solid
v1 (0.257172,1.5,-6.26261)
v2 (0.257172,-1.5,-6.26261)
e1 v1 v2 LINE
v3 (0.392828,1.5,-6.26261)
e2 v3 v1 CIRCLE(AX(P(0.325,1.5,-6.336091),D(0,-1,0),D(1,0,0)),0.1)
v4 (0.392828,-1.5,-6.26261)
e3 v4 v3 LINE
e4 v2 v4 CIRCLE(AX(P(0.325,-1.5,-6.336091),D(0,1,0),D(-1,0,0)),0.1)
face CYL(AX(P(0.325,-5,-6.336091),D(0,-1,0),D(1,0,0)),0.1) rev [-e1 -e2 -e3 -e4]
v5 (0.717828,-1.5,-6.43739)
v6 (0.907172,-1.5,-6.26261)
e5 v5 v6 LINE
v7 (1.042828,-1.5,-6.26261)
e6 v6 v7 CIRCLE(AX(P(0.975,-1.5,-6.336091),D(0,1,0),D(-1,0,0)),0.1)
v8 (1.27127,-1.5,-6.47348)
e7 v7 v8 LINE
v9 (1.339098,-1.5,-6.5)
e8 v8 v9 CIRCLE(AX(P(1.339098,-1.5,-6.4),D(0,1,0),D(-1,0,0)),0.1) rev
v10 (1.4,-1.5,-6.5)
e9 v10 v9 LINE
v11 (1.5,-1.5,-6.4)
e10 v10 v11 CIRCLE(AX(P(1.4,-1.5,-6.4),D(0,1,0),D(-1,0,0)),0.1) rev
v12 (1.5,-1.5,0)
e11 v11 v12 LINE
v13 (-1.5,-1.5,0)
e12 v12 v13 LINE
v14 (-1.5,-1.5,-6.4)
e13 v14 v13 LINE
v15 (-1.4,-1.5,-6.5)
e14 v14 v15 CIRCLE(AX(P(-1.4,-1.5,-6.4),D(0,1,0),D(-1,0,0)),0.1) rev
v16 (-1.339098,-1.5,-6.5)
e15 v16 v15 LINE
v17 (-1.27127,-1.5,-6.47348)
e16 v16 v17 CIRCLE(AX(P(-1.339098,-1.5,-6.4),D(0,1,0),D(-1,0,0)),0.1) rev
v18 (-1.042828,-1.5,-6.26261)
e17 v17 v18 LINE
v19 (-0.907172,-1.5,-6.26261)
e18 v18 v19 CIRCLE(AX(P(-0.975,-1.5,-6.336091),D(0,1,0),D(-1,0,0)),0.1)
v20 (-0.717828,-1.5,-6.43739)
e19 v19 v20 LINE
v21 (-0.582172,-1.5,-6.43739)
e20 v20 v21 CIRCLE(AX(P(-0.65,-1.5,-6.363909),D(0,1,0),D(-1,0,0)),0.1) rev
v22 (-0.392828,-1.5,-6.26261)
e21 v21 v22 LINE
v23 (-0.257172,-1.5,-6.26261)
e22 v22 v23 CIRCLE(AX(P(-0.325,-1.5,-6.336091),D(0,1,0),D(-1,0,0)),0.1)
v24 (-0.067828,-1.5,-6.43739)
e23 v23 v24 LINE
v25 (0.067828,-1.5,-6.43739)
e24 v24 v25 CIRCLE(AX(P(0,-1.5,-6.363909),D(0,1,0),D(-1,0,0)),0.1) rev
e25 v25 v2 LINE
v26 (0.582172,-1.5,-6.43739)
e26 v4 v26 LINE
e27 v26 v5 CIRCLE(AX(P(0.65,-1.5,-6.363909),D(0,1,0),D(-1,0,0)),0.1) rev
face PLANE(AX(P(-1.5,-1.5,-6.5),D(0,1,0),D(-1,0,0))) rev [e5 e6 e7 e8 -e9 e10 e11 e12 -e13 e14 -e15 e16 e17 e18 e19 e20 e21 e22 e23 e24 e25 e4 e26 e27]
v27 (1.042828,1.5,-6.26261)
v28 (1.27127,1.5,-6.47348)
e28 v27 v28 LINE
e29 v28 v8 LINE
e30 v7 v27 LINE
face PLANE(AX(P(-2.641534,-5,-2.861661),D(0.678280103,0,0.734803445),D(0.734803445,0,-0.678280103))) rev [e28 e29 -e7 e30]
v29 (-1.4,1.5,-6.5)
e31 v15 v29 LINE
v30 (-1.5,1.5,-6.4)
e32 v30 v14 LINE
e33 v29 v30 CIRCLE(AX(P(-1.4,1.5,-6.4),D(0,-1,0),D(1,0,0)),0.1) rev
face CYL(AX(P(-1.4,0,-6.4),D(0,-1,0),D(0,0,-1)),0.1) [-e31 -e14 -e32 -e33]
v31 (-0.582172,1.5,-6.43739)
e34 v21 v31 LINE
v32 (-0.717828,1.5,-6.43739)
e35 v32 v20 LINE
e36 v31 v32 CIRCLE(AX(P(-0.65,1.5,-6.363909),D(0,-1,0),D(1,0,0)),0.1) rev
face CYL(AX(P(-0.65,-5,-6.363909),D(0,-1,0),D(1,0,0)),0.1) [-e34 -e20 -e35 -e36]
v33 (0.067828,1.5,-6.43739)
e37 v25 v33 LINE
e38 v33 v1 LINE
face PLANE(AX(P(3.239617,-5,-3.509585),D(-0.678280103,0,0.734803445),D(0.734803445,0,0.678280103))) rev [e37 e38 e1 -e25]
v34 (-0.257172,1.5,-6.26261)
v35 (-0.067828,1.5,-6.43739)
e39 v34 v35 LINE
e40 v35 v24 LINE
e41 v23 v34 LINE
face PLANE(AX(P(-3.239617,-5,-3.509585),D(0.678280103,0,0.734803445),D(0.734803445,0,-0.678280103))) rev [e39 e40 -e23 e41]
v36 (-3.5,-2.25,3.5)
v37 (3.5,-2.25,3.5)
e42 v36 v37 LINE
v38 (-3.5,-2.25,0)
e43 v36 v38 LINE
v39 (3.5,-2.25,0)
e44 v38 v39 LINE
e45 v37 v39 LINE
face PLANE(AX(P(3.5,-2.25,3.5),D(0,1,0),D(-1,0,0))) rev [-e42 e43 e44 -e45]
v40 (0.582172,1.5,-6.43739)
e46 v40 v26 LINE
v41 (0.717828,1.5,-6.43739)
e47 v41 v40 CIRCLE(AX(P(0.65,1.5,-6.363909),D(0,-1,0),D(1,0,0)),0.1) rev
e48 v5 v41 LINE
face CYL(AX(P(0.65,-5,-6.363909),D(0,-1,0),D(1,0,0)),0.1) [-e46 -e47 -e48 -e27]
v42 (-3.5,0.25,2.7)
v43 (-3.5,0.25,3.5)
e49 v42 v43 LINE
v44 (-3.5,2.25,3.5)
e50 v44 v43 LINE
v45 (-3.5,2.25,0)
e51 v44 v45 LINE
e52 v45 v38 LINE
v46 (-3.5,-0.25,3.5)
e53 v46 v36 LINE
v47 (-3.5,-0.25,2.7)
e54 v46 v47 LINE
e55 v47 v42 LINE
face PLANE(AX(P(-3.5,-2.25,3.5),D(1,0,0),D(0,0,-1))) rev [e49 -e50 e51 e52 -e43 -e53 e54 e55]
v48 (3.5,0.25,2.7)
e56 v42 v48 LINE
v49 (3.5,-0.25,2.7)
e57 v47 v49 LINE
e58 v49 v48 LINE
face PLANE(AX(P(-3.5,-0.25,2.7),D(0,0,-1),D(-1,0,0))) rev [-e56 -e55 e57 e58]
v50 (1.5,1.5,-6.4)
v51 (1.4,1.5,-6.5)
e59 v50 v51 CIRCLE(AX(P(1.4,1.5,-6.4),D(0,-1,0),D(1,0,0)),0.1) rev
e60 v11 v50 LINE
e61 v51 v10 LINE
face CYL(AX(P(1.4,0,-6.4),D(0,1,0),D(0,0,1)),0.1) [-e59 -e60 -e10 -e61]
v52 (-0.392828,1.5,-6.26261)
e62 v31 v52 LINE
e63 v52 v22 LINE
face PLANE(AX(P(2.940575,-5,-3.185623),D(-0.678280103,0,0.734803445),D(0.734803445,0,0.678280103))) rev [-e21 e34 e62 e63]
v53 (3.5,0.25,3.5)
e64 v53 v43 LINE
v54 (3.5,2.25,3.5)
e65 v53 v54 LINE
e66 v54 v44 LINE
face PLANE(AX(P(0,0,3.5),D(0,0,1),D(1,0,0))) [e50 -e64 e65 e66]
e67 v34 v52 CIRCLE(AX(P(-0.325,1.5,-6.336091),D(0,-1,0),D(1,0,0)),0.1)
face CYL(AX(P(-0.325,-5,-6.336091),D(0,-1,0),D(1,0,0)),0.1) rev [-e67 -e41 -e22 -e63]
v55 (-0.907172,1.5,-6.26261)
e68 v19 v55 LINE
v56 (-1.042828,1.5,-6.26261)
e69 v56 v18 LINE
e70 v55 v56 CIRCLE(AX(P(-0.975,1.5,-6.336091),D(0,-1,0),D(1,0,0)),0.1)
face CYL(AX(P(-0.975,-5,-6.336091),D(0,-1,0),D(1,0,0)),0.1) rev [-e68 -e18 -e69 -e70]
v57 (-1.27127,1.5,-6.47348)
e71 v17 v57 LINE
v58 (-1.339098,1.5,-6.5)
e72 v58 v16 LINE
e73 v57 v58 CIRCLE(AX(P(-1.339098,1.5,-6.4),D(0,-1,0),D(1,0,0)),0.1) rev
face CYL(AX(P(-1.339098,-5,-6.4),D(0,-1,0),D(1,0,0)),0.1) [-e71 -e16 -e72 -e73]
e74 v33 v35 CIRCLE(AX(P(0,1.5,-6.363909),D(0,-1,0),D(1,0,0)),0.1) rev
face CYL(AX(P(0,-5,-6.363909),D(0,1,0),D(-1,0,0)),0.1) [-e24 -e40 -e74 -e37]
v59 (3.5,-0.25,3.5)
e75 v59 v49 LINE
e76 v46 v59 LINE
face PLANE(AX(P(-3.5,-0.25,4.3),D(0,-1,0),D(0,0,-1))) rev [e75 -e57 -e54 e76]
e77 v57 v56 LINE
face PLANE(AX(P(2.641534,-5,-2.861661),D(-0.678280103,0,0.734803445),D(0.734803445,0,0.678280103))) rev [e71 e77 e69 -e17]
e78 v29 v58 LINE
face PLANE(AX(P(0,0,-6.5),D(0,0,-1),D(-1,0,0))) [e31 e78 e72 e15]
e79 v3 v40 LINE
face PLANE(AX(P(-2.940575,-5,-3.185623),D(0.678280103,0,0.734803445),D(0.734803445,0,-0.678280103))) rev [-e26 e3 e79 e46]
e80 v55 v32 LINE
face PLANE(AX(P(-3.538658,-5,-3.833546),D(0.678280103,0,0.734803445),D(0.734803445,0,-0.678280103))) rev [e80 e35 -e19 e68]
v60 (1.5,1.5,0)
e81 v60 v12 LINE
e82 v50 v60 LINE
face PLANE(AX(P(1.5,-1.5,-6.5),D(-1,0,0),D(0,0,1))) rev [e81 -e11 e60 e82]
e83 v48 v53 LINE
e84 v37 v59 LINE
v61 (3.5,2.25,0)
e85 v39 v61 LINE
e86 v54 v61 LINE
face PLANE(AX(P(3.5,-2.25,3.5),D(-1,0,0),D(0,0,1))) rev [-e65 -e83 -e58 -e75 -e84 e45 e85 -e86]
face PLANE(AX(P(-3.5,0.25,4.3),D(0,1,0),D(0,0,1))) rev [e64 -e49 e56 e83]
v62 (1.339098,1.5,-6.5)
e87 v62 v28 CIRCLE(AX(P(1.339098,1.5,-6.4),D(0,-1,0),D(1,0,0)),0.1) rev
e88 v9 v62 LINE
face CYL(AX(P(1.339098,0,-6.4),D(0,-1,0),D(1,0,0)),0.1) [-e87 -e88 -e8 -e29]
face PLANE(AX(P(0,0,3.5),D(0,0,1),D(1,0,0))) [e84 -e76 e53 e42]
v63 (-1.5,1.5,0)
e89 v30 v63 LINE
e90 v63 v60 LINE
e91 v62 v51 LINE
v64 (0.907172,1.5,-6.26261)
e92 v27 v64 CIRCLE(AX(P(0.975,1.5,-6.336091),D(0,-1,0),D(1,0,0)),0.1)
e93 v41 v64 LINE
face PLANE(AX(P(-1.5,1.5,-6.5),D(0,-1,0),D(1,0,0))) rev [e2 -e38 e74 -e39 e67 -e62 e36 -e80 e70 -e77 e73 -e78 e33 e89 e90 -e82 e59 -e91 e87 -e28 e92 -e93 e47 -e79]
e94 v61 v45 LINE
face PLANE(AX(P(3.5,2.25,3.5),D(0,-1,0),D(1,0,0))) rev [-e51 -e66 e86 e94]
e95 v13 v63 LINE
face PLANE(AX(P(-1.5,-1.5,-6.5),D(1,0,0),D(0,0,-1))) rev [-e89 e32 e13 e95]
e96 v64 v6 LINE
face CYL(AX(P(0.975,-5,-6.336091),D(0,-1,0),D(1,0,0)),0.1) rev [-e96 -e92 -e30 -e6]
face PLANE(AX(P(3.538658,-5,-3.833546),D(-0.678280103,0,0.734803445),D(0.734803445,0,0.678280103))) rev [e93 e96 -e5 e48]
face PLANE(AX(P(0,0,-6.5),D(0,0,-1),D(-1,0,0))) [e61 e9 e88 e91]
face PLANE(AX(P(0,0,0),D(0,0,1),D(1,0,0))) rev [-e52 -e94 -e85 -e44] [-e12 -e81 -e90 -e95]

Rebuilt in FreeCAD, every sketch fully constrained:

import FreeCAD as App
import Part
import Sketcher

V = App.Vector
Q = App.Units.Quantity


def edges_at(feature, points):
    """Names of the edges that pass closest to the given points."""
    edges = feature.Shape.Edges
    near = lambda p: min(range(len(edges)), key=lambda i: edges[i].distToShape(Part.Vertex(*p))[0])
    return sorted({f"Edge{near(p) + 1}" for p in points})


def add_polygon(sketch, points):
    """Adds a closed chain of lines whose ends are joined by coincident constraints."""
    first, n = sketch.GeometryCount, len(points)
    for a, b in zip(points, points[1:] + points[:1]):
        sketch.addGeometry(Part.LineSegment(App.Vector(*a, 0), App.Vector(*b, 0)), False)
    for i in range(n):
        sketch.addConstraint(Sketcher.Constraint("Coincident", first + i, 2, first + (i + 1) % n, 1))

doc = App.newDocument("Part")
body = doc.addObject("PartDesign::Body", "Body")

sketch1 = body.newObject("Sketcher::SketchObject", "Sketch")
sketch1.AttachmentSupport = (doc.getObject("XY_Plane"), [""])
sketch1.MapMode = "FlatFace"
add_polygon(sketch1, [(-3.5, 2.25), (-3.5, -2.25), (3.5, -2.25), (3.5, 2.25)])
sketch1.addConstraint([
    Sketcher.Constraint("Vertical", 0),
    Sketcher.Constraint("Horizontal", 1),
    Sketcher.Constraint("Vertical", 2),
    Sketcher.Constraint("Horizontal", 3),
    Sketcher.Constraint("Symmetric", 0, 2, 2, 2, -1, 1),
    Sketcher.Constraint("DistanceX", 1, 1, 1, 2, Q("7 mm")),
    Sketcher.Constraint("DistanceY", 0, 2, 0, 1, Q("4.5 mm")),
])
pad1 = body.newObject("PartDesign::Pad", "Pad")
pad1.Profile = sketch1
pad1.Length = 3.5

sketch2 = body.newObject("Sketcher::SketchObject", "Sketch001")
sketch2.AttachmentSupport = (doc.getObject("XY_Plane"), [""])
sketch2.MapMode = "FlatFace"
add_polygon(sketch2, [(1.5, 1.5), (1.5, -1.5), (-1.5, -1.5), (-1.5, 1.5)])
sketch2.addConstraint([
    Sketcher.Constraint("Vertical", 0),
    Sketcher.Constraint("Horizontal", 1),
    Sketcher.Constraint("Vertical", 2),
    Sketcher.Constraint("Horizontal", 3),
    Sketcher.Constraint("Symmetric", 0, 2, 2, 2, -1, 1),
    Sketcher.Constraint("Equal", 3, 0),
    Sketcher.Constraint("DistanceX", 1, 2, 1, 1, Q("3 mm")),
])
pad2 = body.newObject("PartDesign::Pad", "Pad001")
pad2.Profile = sketch2
pad2.Length = 6.5
pad2.Reversed = True

sketch3 = body.newObject("Sketcher::SketchObject", "Sketch002")
sketch3.AttachmentSupport = (doc.getObject("YZ_Plane"), [""])
sketch3.MapMode = "FlatFace"
sketch3.AttachmentOffset = App.Placement(V(0, 0, 3.5), App.Rotation())
add_polygon(sketch3, [(0.25, 4.3), (-0.25, 4.3), (-0.25, 2.7), (0.25, 2.7)])
sketch3.addConstraint([
    Sketcher.Constraint("Horizontal", 0),
    Sketcher.Constraint("Vertical", 1),
    Sketcher.Constraint("Horizontal", 2),
    Sketcher.Constraint("Vertical", 3),
    Sketcher.Constraint("DistanceX", 0, 2, 0, 1, Q("0.5 mm")),
    Sketcher.Constraint("DistanceY", 1, 2, 1, 1, Q("1.6 mm")),
    Sketcher.Constraint("DistanceY", -1, 1, 0, 2, Q("4.3 mm")),
    Sketcher.Constraint("DistanceX", 0, 2, -1, 1, Q("0.25 mm")),
])
pocket1 = body.newObject("PartDesign::Pocket", "Pocket")
pocket1.Profile = sketch3
pocket1.Type = "ThroughAll"

sketch4 = body.newObject("Sketcher::SketchObject", "Sketch003")
sketch4.AttachmentSupport = (doc.getObject("XZ_Plane"), [""])
sketch4.MapMode = "FlatFace"
sketch4.AttachmentOffset = App.Placement(V(0, 0, -1.5), App.Rotation())
add_polygon(sketch4, [(-0.65, -6.5), (-1.3, -6.5), (-0.975, -6.2)])
add_polygon(sketch4, [(0, -6.5), (-0.65, -6.5), (-0.325, -6.2)])
add_polygon(sketch4, [(0.65, -6.5), (0, -6.5), (0.325, -6.2)])
add_polygon(sketch4, [(1.3, -6.5), (0.65, -6.5), (0.975, -6.2)])
sketch4.addConstraint([
    Sketcher.Constraint("Horizontal", 0),
    Sketcher.Constraint("Horizontal", 3),
    Sketcher.Constraint("Horizontal", 6),
    Sketcher.Constraint("Horizontal", 9),
    Sketcher.Constraint("Coincident", 3, 2, 2, 2),
    Sketcher.Constraint("Coincident", 6, 2, 5, 2),
    Sketcher.Constraint("Coincident", 9, 2, 8, 2),
    Sketcher.Constraint("Symmetric", 4, 2, 7, 2, -2),
    Sketcher.Constraint("Symmetric", 1, 2, 10, 2, -2),
    Sketcher.Constraint("PointOnObject", 5, 2, -2),
    Sketcher.Constraint("Parallel", 1, 4),
    Sketcher.Constraint("Parallel", 2, 5),
    Sketcher.Constraint("Parallel", 4, 7),
    Sketcher.Constraint("Parallel", 5, 8),
    Sketcher.Constraint("Parallel", 8, 11),
    Sketcher.Constraint("Horizontal", 1, 2, 4, 2),
    Sketcher.Constraint("DistanceX", 0, 2, 0, 1, Q("0.65 mm")),
    Sketcher.Constraint("DistanceY", 0, 2, -1, 1, Q("6.5 mm")),
    Sketcher.Constraint("DistanceY", 1, 2, -1, 1, Q("6.2 mm")),
])
pocket2 = body.newObject("PartDesign::Pocket", "Pocket001")
pocket2.Profile = sketch4
pocket2.Length = 6.5
pocket2.Reversed = True
doc.recompute()

fillet = body.newObject("PartDesign::Fillet", "Fillet")
fillet.Base = (pocket2, edges_at(pocket2, [
    (1.5, 0, -6.5),
    (-1.5, 0, -6.5),
    (0.65, 0, -6.5),
    (0, 0, -6.5),
    (-0.65, 0, -6.5),
    (-1.3, 0, -6.5),
    (-0.975, 0, -6.2),
    (0.325, 0, -6.2),
    (-0.325, 0, -6.2),
    (1.3, 0, -6.5),
    (0.975, 0, -6.2),
]))
fillet.Radius = 0.1

doc.recompute()
